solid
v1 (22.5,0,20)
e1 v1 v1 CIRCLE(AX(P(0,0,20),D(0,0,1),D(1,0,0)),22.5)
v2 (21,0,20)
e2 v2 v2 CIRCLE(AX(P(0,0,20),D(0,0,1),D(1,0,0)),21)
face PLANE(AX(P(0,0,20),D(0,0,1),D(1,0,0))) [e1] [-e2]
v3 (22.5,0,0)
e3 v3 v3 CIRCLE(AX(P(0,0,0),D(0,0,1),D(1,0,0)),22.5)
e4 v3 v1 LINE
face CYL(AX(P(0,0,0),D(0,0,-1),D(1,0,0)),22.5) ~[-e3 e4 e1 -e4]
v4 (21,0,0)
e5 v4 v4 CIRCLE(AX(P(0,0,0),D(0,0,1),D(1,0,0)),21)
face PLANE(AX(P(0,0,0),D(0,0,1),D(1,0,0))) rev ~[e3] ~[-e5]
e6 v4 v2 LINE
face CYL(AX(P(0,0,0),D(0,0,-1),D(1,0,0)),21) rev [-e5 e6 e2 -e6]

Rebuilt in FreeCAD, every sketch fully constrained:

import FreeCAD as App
import Part
import Sketcher
Q = App.Units.Quantity

doc = App.newDocument("Part")
params = doc.addObject("Spreadsheet::Sheet", "Params")
for row, (alias, value) in enumerate([
    ("sketch1_diameter", "45 mm"),
    ("sketch1_diameter2", "42 mm"),
    ("pad1_length", "20 mm"),
], start=1):
    params.set(f"A{row}", alias)
    params.set(f"B{row}", "=" + value)
    params.setAlias(f"B{row}", alias)

body = doc.addObject("PartDesign::Body", "Body")

# Sketch on XY plane
sketch1 = body.newObject("Sketcher::SketchObject", "Sketch")
sketch1.AttachmentSupport = (doc.getObject("XY_Plane"), [""])
sketch1.MapMode = "FlatFace"
sketch1.addGeometry([
    Part.Circle(App.Vector(0, 0, 0), App.Vector(0, 0, 1), 22),
    Part.Circle(App.Vector(0, 0, 0), App.Vector(0, 0, 1), 21),
], False)
sketch1.addConstraint([
    Sketcher.Constraint("Coincident", 0, 3, -1, 1),
    Sketcher.Constraint("Coincident", 1, 3, -1, 1),
    Sketcher.Constraint("Diameter", 0, Q("45 mm")),
    Sketcher.Constraint("Diameter", 1, Q("42 mm")),
])
sketch1.setExpression("Constraints[2]", "Params.sketch1_diameter")
sketch1.setExpression("Constraints[3]", "Params.sketch1_diameter2")
pad1 = body.newObject("PartDesign::Pad", "Pad")
pad1.Profile = sketch1
pad1.setExpression("Length", "Params.pad1_length")

doc.recompute()
